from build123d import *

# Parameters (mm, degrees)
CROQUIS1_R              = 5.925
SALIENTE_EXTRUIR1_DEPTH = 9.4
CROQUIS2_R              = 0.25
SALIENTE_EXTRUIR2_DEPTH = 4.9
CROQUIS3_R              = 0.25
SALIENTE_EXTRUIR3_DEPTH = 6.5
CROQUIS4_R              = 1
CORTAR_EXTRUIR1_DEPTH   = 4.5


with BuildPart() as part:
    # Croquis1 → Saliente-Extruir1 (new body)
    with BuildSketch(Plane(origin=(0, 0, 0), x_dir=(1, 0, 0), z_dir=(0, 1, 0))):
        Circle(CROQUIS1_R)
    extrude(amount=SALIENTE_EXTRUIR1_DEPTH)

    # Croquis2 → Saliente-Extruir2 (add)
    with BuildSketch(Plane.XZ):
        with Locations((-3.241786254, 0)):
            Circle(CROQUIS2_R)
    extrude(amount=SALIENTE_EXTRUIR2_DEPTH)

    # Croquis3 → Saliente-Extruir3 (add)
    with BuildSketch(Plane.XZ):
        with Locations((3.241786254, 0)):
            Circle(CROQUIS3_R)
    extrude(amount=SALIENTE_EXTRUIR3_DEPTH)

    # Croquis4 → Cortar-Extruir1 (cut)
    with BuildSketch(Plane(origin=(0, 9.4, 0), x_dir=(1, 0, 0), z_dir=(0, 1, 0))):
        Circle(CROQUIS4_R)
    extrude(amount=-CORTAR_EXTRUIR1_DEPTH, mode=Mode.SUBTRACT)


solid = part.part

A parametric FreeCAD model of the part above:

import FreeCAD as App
import Part
import Sketcher
Q = App.Units.Quantity

doc = App.newDocument("Part")
body = doc.addObject("PartDesign::Body", "Body")

sketch1 = body.newObject("Sketcher::SketchObject", "Sketch")
sketch1.AttachmentSupport = (doc.getObject("XZ_Plane"), [""])
sketch1.MapMode = "FlatFace"
sketch1.addGeometry(Part.Circle(App.Vector(0, 0, 0), App.Vector(0, 0, 1), 6), False)
sketch1.addConstraint([
    Sketcher.Constraint("Coincident", 0, 3, -1, 1),
    Sketcher.Constraint("Diameter", 0, Q("11.85 mm")),
])
pad1 = body.newObject("PartDesign::Pad", "Pad")
pad1.Profile = sketch1
pad1.Length = 9.4
pad1.Reversed = True

sketch2 = body.newObject("Sketcher::SketchObject", "Sketch001")
sketch2.AttachmentSupport = (doc.getObject("XZ_Plane"), [""])
sketch2.MapMode = "FlatFace"
sketch2.addGeometry(Part.Circle(App.Vector(-3.24, 0, 0), App.Vector(0, 0, 1), 0.25), False)
sketch2.addConstraint([
    Sketcher.Constraint("PointOnObject", 0, 3, -1),
    Sketcher.Constraint("Diameter", 0, Q("0.5 mm")),
    Sketcher.Constraint("DistanceX", 0, 3, -1, 1, Q("3.241786 mm")),
])
pad2 = body.newObject("PartDesign::Pad", "Pad001")
pad2.Profile = sketch2
pad2.Length = 4.9

sketch3 = body.newObject("Sketcher::SketchObject", "Sketch002")
sketch3.AttachmentSupport = (doc.getObject("XZ_Plane"), [""])
sketch3.MapMode = "FlatFace"
sketch3.addGeometry(Part.Circle(App.Vector(3.24, 0, 0), App.Vector(0, 0, 1), 0.25), False)
sketch3.addConstraint([
    Sketcher.Constraint("PointOnObject", 0, 3, -1),
    Sketcher.Constraint("Diameter", 0, Q("0.5 mm")),
    Sketcher.Constraint("DistanceX", -1, 1, 0, 3, Q("3.241786 mm")),
])
pad3 = body.newObject("PartDesign::Pad", "Pad002")
pad3.Profile = sketch3
pad3.Length = 6.5

sketch4 = body.newObject("Sketcher::SketchObject", "Sketch003")
sketch4.AttachmentSupport = (doc.getObject("XZ_Plane"), [""])
sketch4.MapMode = "FlatFace"
sketch4.AttachmentOffset = App.Placement(App.Vector(0, 0, -9.4), App.Rotation())
sketch4.addGeometry(Part.Circle(App.Vector(0, 0, 0), App.Vector(0, 0, 1), 1), False)
sketch4.addConstraint([
    Sketcher.Constraint("Coincident", 0, 3, -1, 1),
    Sketcher.Constraint("Diameter", 0, Q("2 mm")),
])
pocket1 = body.newObject("PartDesign::Pocket", "Pocket")
pocket1.Profile = sketch4
pocket1.Length = 4.5
pocket1.Reversed = True

doc.recompute()
